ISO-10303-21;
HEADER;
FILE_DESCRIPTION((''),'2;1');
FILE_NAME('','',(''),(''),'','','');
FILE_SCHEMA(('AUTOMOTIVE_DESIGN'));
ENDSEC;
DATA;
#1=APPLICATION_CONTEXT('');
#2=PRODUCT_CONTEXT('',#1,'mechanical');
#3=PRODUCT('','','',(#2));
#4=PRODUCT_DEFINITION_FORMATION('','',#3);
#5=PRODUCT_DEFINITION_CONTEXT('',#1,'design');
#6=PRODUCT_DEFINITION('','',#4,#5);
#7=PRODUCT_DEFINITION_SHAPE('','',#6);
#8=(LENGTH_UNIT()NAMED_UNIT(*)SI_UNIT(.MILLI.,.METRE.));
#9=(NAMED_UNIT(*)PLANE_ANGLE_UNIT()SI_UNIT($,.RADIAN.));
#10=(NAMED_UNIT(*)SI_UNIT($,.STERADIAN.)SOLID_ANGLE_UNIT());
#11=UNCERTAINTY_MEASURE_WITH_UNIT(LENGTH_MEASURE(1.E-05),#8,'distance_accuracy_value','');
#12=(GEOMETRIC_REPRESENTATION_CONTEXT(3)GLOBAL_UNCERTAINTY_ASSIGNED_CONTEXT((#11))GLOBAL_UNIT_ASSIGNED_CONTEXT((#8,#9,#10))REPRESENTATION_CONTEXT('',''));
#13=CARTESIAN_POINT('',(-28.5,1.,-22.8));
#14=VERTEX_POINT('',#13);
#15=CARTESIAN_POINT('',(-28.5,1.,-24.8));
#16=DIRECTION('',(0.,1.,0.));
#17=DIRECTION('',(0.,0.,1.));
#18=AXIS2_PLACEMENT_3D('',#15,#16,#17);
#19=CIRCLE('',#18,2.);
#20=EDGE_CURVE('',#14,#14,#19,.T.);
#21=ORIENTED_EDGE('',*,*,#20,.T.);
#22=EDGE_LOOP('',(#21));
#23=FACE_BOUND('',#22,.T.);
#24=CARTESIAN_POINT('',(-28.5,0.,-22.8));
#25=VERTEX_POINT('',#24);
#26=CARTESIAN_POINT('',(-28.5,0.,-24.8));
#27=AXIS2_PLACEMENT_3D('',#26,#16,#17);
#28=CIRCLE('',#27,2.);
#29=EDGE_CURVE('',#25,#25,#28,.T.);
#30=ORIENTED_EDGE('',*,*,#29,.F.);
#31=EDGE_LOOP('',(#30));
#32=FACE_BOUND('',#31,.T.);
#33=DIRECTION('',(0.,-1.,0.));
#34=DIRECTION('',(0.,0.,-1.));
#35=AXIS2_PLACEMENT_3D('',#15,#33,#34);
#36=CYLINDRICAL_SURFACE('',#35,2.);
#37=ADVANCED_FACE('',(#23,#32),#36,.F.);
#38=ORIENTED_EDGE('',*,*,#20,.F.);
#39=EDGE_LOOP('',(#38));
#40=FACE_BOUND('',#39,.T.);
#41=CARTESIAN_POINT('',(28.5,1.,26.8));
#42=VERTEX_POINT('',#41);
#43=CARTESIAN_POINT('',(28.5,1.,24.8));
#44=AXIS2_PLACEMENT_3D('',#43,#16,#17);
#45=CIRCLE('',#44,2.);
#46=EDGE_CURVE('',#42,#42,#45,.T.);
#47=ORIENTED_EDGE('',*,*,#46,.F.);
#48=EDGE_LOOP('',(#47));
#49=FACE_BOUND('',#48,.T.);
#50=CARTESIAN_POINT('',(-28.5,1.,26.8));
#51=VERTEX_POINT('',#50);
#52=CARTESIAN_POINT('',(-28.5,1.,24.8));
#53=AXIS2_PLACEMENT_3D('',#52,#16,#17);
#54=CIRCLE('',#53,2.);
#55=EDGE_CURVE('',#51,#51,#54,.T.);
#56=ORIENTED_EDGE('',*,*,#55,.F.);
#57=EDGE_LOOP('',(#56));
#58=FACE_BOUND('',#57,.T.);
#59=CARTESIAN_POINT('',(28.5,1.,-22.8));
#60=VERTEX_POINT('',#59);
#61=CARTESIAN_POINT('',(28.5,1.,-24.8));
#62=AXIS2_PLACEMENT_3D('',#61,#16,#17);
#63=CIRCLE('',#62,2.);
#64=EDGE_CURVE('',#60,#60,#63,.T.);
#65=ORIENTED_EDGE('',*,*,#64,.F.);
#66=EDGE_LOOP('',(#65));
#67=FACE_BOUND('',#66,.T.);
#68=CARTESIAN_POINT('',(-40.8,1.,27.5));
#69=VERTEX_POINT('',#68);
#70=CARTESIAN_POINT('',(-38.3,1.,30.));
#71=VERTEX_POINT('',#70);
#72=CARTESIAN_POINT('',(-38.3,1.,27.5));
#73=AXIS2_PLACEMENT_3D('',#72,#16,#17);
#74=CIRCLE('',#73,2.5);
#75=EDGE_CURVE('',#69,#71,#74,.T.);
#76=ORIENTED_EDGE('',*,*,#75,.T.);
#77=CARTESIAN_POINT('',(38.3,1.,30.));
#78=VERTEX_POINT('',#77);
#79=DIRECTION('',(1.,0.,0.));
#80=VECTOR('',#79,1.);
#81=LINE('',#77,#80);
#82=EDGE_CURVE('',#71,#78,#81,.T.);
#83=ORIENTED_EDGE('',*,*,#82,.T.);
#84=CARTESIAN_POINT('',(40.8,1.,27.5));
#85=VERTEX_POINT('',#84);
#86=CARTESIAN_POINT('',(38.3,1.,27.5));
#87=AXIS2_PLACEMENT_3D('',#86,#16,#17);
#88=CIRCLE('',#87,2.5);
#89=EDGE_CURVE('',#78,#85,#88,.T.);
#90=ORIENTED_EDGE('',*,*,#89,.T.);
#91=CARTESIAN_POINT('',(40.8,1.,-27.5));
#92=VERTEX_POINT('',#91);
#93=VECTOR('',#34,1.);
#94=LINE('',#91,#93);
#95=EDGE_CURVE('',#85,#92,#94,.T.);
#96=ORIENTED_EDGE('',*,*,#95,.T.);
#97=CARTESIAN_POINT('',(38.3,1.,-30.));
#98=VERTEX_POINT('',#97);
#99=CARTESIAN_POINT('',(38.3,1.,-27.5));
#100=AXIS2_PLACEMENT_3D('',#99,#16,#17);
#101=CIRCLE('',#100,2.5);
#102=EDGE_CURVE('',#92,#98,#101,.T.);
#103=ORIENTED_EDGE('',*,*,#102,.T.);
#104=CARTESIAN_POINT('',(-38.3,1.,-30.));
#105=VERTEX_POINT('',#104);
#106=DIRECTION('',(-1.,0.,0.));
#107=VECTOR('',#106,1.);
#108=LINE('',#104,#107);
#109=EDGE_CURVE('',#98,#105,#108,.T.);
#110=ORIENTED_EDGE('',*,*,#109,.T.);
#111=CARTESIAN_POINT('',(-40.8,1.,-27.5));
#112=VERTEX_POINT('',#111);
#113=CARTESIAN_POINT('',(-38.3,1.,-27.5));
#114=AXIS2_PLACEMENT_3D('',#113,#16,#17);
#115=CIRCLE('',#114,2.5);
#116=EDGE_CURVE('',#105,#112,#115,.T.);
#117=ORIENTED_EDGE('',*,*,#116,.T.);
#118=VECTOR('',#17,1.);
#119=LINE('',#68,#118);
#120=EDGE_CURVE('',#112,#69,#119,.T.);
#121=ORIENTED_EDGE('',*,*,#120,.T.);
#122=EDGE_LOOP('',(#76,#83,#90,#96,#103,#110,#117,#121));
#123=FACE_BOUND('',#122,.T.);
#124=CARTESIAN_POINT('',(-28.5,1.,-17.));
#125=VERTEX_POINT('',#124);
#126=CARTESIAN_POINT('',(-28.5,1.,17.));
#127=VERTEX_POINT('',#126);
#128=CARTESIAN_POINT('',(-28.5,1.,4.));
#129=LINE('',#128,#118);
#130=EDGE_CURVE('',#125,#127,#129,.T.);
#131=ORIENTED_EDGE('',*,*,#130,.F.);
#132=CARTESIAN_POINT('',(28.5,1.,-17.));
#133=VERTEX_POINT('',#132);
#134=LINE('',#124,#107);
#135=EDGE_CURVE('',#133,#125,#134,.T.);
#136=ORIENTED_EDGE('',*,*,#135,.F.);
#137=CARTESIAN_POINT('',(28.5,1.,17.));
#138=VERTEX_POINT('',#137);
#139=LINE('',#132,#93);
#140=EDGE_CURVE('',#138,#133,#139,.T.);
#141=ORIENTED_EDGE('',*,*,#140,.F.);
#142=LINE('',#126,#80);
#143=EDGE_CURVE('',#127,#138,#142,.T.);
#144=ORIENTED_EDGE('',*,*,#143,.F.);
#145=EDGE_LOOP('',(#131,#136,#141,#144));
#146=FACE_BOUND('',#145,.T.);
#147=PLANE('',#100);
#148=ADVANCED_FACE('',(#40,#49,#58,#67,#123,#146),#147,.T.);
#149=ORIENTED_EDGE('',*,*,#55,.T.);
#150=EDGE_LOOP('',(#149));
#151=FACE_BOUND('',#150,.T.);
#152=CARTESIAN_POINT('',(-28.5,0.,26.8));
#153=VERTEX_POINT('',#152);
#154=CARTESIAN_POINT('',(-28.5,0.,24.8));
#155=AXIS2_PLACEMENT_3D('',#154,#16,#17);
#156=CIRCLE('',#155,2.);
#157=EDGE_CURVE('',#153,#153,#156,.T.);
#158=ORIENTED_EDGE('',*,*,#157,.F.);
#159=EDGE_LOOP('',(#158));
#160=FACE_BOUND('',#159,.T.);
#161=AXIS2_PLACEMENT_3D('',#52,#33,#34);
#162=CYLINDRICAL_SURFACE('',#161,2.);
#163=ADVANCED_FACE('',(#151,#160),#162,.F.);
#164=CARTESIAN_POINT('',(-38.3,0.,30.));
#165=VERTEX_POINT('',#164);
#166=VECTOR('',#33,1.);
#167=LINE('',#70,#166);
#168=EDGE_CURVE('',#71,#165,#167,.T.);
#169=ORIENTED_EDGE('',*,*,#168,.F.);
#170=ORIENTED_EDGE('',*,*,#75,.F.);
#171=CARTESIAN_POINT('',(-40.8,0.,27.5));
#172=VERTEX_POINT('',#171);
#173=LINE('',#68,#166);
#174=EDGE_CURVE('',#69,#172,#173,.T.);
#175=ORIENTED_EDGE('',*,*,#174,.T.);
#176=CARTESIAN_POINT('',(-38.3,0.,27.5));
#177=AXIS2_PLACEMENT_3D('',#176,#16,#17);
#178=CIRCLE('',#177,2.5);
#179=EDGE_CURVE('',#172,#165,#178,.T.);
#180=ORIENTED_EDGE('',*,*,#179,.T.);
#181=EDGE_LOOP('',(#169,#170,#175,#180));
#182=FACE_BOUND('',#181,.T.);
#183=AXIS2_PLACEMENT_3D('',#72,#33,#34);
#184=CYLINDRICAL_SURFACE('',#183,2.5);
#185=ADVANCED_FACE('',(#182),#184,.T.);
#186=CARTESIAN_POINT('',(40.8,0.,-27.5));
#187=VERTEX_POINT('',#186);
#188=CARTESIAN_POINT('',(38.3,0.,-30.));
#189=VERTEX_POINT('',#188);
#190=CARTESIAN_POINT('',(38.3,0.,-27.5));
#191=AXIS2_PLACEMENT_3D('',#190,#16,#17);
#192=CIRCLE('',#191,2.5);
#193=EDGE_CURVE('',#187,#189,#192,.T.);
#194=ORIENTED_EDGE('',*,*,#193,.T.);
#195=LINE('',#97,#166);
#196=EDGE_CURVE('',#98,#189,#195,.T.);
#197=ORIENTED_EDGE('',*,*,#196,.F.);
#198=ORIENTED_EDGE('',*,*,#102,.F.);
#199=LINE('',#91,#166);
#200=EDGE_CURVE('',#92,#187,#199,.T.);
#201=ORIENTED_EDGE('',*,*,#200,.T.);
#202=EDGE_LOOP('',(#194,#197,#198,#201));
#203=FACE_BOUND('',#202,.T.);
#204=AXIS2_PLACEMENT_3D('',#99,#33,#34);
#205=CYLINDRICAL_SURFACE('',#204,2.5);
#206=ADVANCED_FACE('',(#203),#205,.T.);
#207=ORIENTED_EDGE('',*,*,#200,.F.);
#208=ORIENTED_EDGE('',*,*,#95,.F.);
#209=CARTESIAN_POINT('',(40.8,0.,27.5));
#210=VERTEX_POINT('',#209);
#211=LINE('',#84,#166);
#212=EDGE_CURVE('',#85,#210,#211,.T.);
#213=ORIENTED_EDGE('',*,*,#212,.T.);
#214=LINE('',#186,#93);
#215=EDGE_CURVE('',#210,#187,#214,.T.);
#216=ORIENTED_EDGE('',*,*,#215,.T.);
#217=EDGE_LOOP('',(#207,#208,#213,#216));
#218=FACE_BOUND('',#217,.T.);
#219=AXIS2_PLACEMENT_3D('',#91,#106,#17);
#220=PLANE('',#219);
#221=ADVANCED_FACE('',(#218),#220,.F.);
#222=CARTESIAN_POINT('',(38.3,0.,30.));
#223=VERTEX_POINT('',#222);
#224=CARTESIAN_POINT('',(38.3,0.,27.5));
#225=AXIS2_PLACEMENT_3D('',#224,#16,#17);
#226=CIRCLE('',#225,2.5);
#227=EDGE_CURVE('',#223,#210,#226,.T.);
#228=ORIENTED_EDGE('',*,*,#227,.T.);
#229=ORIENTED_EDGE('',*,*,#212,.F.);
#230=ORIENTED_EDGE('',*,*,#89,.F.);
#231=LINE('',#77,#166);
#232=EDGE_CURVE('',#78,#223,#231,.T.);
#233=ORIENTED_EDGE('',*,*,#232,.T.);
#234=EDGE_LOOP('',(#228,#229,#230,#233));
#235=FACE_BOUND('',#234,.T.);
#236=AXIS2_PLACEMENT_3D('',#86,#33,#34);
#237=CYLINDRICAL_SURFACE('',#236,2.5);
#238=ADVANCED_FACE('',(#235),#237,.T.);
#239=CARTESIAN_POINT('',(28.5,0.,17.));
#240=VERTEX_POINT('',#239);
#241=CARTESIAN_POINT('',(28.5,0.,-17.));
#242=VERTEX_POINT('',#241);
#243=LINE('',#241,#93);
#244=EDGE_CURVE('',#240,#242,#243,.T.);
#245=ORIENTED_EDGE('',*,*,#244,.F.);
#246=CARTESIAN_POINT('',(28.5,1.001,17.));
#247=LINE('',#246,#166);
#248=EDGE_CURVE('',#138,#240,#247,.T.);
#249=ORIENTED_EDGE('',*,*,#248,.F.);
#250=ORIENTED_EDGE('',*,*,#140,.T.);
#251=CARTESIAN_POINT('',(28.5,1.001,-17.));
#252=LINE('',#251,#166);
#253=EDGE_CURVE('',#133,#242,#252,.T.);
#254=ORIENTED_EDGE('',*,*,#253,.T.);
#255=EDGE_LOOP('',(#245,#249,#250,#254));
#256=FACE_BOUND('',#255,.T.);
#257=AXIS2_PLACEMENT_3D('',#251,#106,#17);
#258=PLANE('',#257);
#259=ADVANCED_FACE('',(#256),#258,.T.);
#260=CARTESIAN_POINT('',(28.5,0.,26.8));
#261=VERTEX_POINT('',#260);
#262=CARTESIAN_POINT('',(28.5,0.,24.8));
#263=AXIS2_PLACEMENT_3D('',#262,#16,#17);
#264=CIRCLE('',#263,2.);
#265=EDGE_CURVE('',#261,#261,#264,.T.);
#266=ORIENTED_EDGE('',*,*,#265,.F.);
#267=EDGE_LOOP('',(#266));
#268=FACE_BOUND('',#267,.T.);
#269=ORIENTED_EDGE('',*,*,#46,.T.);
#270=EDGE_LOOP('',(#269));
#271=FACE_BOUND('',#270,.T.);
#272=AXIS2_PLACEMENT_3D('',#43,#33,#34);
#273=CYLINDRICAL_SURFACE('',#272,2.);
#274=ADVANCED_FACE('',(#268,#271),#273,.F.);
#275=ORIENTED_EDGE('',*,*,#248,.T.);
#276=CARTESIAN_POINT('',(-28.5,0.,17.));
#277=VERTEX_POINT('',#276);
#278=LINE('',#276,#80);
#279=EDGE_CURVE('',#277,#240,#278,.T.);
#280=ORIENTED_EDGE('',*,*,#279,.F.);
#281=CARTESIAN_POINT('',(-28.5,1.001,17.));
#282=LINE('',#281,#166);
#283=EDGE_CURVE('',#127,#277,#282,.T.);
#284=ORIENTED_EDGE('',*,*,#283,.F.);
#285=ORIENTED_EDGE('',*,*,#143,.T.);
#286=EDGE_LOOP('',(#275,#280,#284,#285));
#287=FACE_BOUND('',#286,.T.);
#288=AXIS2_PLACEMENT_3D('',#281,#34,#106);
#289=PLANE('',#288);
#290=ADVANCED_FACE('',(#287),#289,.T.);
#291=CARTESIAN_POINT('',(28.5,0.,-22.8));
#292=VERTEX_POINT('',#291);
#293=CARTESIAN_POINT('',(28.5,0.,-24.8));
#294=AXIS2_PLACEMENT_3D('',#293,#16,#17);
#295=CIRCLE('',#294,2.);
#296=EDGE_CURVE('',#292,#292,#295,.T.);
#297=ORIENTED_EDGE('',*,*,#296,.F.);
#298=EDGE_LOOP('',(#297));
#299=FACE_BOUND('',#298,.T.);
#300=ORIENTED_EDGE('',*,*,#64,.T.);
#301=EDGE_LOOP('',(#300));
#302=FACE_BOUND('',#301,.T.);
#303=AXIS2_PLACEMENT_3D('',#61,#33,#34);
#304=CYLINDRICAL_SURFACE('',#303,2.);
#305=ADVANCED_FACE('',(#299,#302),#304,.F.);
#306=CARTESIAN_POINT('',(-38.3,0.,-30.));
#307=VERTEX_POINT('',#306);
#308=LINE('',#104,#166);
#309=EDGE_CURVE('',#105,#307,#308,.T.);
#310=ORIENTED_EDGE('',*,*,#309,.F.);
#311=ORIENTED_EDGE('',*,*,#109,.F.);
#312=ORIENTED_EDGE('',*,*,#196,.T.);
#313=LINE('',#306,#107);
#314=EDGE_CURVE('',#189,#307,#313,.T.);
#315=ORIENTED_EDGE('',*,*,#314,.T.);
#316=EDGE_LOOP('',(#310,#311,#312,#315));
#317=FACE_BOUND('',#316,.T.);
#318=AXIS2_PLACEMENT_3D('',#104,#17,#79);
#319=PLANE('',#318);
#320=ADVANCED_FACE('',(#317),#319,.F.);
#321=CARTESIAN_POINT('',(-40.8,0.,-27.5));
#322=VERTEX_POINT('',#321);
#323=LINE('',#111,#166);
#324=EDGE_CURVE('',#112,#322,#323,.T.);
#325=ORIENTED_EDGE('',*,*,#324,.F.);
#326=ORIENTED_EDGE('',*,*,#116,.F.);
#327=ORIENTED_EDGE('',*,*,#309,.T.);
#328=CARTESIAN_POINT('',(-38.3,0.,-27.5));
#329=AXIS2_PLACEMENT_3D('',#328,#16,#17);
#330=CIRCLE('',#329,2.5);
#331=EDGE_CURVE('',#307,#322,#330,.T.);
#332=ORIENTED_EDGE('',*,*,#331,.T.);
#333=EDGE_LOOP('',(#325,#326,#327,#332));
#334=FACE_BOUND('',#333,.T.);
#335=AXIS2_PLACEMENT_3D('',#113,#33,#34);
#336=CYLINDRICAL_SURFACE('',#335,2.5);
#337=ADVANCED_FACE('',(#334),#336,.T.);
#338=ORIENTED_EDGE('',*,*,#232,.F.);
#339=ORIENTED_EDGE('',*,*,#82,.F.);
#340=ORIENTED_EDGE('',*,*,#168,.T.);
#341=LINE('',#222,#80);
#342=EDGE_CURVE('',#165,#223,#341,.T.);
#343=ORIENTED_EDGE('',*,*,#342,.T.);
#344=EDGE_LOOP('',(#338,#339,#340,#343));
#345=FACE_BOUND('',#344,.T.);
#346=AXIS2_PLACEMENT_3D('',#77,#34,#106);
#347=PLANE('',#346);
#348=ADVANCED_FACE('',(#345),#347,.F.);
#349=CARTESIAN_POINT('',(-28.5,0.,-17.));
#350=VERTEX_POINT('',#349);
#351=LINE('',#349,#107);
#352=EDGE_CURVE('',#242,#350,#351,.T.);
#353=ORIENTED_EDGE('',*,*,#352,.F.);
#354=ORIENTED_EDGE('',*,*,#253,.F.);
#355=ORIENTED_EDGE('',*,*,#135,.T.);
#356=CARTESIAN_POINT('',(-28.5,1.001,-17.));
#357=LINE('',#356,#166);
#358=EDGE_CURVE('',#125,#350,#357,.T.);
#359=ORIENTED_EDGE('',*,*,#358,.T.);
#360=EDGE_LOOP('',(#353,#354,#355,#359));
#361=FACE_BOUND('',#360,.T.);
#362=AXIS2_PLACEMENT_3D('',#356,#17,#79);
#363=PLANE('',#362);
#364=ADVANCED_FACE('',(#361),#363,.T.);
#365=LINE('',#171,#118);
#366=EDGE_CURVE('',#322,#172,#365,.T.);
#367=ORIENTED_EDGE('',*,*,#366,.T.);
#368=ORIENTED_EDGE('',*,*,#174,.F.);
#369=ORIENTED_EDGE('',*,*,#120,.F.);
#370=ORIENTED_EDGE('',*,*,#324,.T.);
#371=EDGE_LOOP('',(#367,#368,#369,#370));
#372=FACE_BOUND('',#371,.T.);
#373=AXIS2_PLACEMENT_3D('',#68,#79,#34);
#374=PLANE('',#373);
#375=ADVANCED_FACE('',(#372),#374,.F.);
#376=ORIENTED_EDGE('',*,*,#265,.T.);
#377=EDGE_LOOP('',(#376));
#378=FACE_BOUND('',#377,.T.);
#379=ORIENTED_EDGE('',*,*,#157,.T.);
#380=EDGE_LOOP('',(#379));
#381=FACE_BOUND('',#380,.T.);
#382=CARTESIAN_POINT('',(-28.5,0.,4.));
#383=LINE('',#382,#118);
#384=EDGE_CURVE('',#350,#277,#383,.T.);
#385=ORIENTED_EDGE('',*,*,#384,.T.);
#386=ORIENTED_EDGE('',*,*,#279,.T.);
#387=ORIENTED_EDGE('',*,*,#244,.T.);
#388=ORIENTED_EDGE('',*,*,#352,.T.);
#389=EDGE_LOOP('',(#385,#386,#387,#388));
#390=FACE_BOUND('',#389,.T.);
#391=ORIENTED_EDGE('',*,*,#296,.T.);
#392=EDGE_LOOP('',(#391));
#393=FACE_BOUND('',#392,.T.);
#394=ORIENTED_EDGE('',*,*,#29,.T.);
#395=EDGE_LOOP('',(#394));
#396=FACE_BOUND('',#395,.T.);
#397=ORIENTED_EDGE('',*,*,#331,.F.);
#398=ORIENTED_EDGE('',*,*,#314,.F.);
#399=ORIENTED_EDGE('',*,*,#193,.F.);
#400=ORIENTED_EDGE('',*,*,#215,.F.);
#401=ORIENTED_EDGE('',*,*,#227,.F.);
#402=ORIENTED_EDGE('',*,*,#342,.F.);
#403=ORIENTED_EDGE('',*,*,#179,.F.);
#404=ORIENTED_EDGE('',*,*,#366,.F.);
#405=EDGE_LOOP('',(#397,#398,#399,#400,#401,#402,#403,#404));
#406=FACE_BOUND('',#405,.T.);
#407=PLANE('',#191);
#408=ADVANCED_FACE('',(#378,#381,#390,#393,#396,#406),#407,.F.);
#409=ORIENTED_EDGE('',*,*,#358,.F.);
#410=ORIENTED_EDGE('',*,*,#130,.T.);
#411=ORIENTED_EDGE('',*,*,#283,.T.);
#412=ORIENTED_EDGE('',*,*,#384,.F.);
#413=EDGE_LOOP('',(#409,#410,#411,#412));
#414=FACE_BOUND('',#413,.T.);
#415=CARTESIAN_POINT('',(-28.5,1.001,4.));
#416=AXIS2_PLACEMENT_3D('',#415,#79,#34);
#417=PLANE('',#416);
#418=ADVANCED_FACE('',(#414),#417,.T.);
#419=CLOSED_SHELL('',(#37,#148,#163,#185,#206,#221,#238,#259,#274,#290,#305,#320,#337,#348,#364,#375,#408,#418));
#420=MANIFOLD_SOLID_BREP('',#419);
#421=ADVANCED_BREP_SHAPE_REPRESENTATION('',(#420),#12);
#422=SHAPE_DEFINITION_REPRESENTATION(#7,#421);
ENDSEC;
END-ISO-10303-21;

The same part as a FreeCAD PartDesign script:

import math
import FreeCAD as App
import Part
import Sketcher
from FreeCAD import Vector


def add_polygon(sketch, points):
    """Adds a closed chain of lines whose ends are joined by coincident constraints."""
    first, n = sketch.GeometryCount, len(points)
    for a, b in zip(points, points[1:] + points[:1]):
        sketch.addGeometry(Part.LineSegment(App.Vector(*a, 0), App.Vector(*b, 0)), False)
    for i in range(n):
        sketch.addConstraint(Sketcher.Constraint("Coincident", first + i, 2, first + (i + 1) % n, 1))

doc = App.newDocument("Part")
params = doc.addObject("Spreadsheet::Sheet", "Params")
for row, (alias, value) in enumerate([
    ("sketch1_diameter", "4 mm"),
    ("sketch1_radius", "2.5 mm"),
    ("sketch1_height", "55 mm"),
    ("sketch1_width", "76.6 mm"),
    ("pad1_length", "1 mm"),
    ("sketch2_width", "57 mm"),
    ("sketch2_height", "34 mm"),
], start=1):
    params.set(f"A{row}", alias)
    params.set(f"B{row}", "=" + value)
    params.setAlias(f"B{row}", alias)

body = doc.addObject("PartDesign::Body", "Body")

# Sketch on XZ plane
sketch1 = body.newObject("Sketcher::SketchObject", "Sketch")
sketch1.AttachmentSupport = (doc.getObject("XZ_Plane"), [""])
sketch1.MapMode = "FlatFace"
sketch1.addGeometry([
    Part.LineSegment(Vector(40.8, 27.5, 0), Vector(40.8, -27.5, 0)),  # 0
    Part.ArcOfCircle(Part.Circle(Vector(38.3, -27.5, 0), Vector(0, 0, 1), 2.5), math.radians(-90), math.radians(0)),  # 1
    Part.LineSegment(Vector(38.3, -30, 0), Vector(-38.3, -30, 0)),  # 2
    Part.ArcOfCircle(Part.Circle(Vector(-38.3, -27.5, 0), Vector(0, 0, 1), 2.5), math.radians(180), math.radians(270)),  # 3
    Part.LineSegment(Vector(-40.8, -27.5, 0), Vector(-40.8, 27.5, 0)),  # 4
    Part.ArcOfCircle(Part.Circle(Vector(-38.3, 27.5, 0), Vector(0, 0, 1), 2.5), math.radians(90), math.radians(180)),  # 5
    Part.LineSegment(Vector(-38.3, 30, 0), Vector(38.3, 30, 0)),  # 6
    Part.ArcOfCircle(Part.Circle(Vector(38.3, 27.5, 0), Vector(0, 0, 1), 2.5), math.radians(0), math.radians(90)),  # 7
    Part.Circle(Vector(28.5, 24.8, 0), Vector(0, 0, 1), 2),  # 8
    Part.Circle(Vector(-28.5, 24.8, 0), Vector(0, 0, 1), 2),  # 9
    Part.Circle(Vector(28.5, -24.8, 0), Vector(0, 0, 1), 2),  # 10
    Part.Circle(Vector(-28.5, -24.8, 0), Vector(0, 0, 1), 2),  # 11
], False)
sketch1.addConstraint([
    Sketcher.Constraint("Tangent", 0, 2, 1, 2),
    Sketcher.Constraint("Tangent", 1, 1, 2, 1),
    Sketcher.Constraint("Tangent", 2, 2, 3, 2),
    Sketcher.Constraint("Tangent", 3, 1, 4, 1),
    Sketcher.Constraint("Tangent", 4, 2, 5, 2),
    Sketcher.Constraint("Tangent", 5, 1, 6, 1),
    Sketcher.Constraint("Tangent", 6, 2, 7, 2),
    Sketcher.Constraint("Tangent", 7, 1, 0, 1),
    Sketcher.Constraint("Vertical", 0),
    Sketcher.Constraint("Horizontal", 2),
    Sketcher.Constraint("Vertical", 4),
    Sketcher.Constraint("Horizontal", 6),
    Sketcher.Constraint("Equal", 1, 3),
    Sketcher.Constraint("Equal", 3, 5),
    Sketcher.Constraint("Equal", 5, 7),
    Sketcher.Constraint("Equal", 8, 9),
    Sketcher.Constraint("Equal", 9, 10),
    Sketcher.Constraint("Equal", 10, 11),
    Sketcher.Constraint("Symmetric", 1, 3, 5, 3, -1, 1),
    Sketcher.Constraint("Symmetric", 9, 3, 10, 3, -1, 1),
    Sketcher.Constraint("Symmetric", 8, 3, 11, 3, -1, 1),
    Sketcher.Constraint("Symmetric", 8, 3, 9, 3, -2),
    Sketcher.Constraint("Diameter", 8, 4.0),
    Sketcher.Constraint("Radius", 1, 2.5),
    Sketcher.Constraint("DistanceY", 0, 2, 0, 1, 55.0),
    Sketcher.Constraint("DistanceX", 2, 2, 2, 1, 76.6),
    Sketcher.Constraint("DistanceX", 9, 3, 8, 3, 57.0),
    Sketcher.Constraint("DistanceY", -1, 1, 8, 3, 24.8),
])
sketch1.setExpression("Constraints[22]", "Params.sketch1_diameter")
sketch1.setExpression("Constraints[23]", "Params.sketch1_radius")
sketch1.setExpression("Constraints[24]", "Params.sketch1_height")
sketch1.setExpression("Constraints[25]", "Params.sketch1_width")
pad1 = body.newObject("PartDesign::Pad", "Pad")
pad1.Profile = sketch1
pad1.setExpression("Length", "Params.pad1_length")
pad1.Reversed = True

# Sketch on XZ plane
sketch2 = body.newObject("Sketcher::SketchObject", "Sketch001")
sketch2.AttachmentSupport = (doc.getObject("XZ_Plane"), [""])
sketch2.MapMode = "FlatFace"
add_polygon(sketch2, [(28, -17), (-28, -17), (-28, 17), (28, 17)])  # lines 0-3
sketch2.addConstraint([
    Sketcher.Constraint("Horizontal", 0),
    Sketcher.Constraint("Vertical", 1),
    Sketcher.Constraint("Horizontal", 2),
    Sketcher.Constraint("Vertical", 3),
    Sketcher.Constraint("Symmetric", 0, 2, 2, 2, -1, 1),
    Sketcher.Constraint("DistanceX", 0, 2, 0, 1, 57.0),
    Sketcher.Constraint("DistanceY", 1, 1, 1, 2, 34.0),
])
sketch2.setExpression("Constraints[9]", "Params.sketch2_width")
sketch2.setExpression("Constraints[10]", "Params.sketch2_height")
pocket1 = body.newObject("PartDesign::Pocket", "Pocket")
pocket1.Profile = sketch2
pocket1.Type = "UpToFirst"

doc.recompute()
